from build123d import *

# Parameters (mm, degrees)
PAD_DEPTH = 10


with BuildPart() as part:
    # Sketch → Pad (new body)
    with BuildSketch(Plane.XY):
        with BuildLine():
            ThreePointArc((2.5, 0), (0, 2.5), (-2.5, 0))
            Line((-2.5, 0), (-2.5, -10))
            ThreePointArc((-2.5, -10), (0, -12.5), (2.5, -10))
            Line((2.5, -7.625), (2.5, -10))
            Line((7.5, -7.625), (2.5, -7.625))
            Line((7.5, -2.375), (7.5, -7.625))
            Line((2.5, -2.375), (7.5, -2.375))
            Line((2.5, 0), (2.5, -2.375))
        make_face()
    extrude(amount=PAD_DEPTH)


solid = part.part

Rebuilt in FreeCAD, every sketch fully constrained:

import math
import FreeCAD as App
import Part
import Sketcher

V = App.Vector
Q = App.Units.Quantity

doc = App.newDocument("Part")
body = doc.addObject("PartDesign::Body", "Body")

# Sketch on XY plane
sketch1 = body.newObject("Sketcher::SketchObject", "Sketch")
sketch1.AttachmentSupport = (doc.getObject("XY_Plane"), [""])
sketch1.MapMode = "FlatFace"
sketch1.addGeometry([
    Part.ArcOfCircle(Part.Circle(V(0, 0, 0), V(0, 0, 1), 2.5), math.radians(0), math.radians(180)),  # 0
    Part.LineSegment(V(-2.5, 0, 0), V(-2.5, -10, 0)),  # 1
    Part.ArcOfCircle(Part.Circle(V(0, -10, 0), V(0, 0, 1), 2.5), math.radians(180), math.radians(360)),  # 2
    Part.LineSegment(V(2.5, -10, 0), V(2.5, -7.625, 0)),  # 3
    Part.LineSegment(V(2.5, -7.625, 0), V(7.5, -7.625, 0)),  # 4
    Part.LineSegment(V(7.5, -7.625, 0), V(7.5, -2.375, 0)),  # 5
    Part.LineSegment(V(7.5, -2.375, 0), V(2.5, -2.375, 0)),  # 6
    Part.LineSegment(V(2.5, -2.375, 0), V(2.5, 0, 0)),  # 7
], False)
sketch1.addConstraint([
    Sketcher.Constraint("Tangent", 0, 2, 1, 1),
    Sketcher.Constraint("Tangent", 1, 2, 2, 1),
    Sketcher.Constraint("Tangent", 2, 2, 3, 1),
    Sketcher.Constraint("Coincident", 3, 2, 4, 1),
    Sketcher.Constraint("Coincident", 4, 2, 5, 1),
    Sketcher.Constraint("Coincident", 5, 2, 6, 1),
    Sketcher.Constraint("Coincident", 6, 2, 7, 1),
    Sketcher.Constraint("Tangent", 7, 2, 0, 1),
    Sketcher.Constraint("Vertical", 1),
    Sketcher.Constraint("Vertical", 3),
    Sketcher.Constraint("Horizontal", 4),
    Sketcher.Constraint("Vertical", 5),
    Sketcher.Constraint("Horizontal", 6),
    Sketcher.Constraint("Vertical", 7),
    Sketcher.Constraint("Coincident", 0, 3, -1, 1),
    Sketcher.Constraint("Equal", 0, 2),
    Sketcher.Constraint("Equal", 3, 7),
    Sketcher.Constraint("Radius", 0, Q("2.5 mm")),
    Sketcher.Constraint("DistanceX", 4, 1, 4, 2, Q("5 mm")),
    Sketcher.Constraint("DistanceY", 1, 2, 1, 1, Q("10 mm")),
    Sketcher.Constraint("DistanceY", 5, 1, 5, 2, Q("5.25 mm")),
])
pad1 = body.newObject("PartDesign::Pad", "Pad")
pad1.Profile = sketch1
pad1.Length = 10

doc.recompute()
